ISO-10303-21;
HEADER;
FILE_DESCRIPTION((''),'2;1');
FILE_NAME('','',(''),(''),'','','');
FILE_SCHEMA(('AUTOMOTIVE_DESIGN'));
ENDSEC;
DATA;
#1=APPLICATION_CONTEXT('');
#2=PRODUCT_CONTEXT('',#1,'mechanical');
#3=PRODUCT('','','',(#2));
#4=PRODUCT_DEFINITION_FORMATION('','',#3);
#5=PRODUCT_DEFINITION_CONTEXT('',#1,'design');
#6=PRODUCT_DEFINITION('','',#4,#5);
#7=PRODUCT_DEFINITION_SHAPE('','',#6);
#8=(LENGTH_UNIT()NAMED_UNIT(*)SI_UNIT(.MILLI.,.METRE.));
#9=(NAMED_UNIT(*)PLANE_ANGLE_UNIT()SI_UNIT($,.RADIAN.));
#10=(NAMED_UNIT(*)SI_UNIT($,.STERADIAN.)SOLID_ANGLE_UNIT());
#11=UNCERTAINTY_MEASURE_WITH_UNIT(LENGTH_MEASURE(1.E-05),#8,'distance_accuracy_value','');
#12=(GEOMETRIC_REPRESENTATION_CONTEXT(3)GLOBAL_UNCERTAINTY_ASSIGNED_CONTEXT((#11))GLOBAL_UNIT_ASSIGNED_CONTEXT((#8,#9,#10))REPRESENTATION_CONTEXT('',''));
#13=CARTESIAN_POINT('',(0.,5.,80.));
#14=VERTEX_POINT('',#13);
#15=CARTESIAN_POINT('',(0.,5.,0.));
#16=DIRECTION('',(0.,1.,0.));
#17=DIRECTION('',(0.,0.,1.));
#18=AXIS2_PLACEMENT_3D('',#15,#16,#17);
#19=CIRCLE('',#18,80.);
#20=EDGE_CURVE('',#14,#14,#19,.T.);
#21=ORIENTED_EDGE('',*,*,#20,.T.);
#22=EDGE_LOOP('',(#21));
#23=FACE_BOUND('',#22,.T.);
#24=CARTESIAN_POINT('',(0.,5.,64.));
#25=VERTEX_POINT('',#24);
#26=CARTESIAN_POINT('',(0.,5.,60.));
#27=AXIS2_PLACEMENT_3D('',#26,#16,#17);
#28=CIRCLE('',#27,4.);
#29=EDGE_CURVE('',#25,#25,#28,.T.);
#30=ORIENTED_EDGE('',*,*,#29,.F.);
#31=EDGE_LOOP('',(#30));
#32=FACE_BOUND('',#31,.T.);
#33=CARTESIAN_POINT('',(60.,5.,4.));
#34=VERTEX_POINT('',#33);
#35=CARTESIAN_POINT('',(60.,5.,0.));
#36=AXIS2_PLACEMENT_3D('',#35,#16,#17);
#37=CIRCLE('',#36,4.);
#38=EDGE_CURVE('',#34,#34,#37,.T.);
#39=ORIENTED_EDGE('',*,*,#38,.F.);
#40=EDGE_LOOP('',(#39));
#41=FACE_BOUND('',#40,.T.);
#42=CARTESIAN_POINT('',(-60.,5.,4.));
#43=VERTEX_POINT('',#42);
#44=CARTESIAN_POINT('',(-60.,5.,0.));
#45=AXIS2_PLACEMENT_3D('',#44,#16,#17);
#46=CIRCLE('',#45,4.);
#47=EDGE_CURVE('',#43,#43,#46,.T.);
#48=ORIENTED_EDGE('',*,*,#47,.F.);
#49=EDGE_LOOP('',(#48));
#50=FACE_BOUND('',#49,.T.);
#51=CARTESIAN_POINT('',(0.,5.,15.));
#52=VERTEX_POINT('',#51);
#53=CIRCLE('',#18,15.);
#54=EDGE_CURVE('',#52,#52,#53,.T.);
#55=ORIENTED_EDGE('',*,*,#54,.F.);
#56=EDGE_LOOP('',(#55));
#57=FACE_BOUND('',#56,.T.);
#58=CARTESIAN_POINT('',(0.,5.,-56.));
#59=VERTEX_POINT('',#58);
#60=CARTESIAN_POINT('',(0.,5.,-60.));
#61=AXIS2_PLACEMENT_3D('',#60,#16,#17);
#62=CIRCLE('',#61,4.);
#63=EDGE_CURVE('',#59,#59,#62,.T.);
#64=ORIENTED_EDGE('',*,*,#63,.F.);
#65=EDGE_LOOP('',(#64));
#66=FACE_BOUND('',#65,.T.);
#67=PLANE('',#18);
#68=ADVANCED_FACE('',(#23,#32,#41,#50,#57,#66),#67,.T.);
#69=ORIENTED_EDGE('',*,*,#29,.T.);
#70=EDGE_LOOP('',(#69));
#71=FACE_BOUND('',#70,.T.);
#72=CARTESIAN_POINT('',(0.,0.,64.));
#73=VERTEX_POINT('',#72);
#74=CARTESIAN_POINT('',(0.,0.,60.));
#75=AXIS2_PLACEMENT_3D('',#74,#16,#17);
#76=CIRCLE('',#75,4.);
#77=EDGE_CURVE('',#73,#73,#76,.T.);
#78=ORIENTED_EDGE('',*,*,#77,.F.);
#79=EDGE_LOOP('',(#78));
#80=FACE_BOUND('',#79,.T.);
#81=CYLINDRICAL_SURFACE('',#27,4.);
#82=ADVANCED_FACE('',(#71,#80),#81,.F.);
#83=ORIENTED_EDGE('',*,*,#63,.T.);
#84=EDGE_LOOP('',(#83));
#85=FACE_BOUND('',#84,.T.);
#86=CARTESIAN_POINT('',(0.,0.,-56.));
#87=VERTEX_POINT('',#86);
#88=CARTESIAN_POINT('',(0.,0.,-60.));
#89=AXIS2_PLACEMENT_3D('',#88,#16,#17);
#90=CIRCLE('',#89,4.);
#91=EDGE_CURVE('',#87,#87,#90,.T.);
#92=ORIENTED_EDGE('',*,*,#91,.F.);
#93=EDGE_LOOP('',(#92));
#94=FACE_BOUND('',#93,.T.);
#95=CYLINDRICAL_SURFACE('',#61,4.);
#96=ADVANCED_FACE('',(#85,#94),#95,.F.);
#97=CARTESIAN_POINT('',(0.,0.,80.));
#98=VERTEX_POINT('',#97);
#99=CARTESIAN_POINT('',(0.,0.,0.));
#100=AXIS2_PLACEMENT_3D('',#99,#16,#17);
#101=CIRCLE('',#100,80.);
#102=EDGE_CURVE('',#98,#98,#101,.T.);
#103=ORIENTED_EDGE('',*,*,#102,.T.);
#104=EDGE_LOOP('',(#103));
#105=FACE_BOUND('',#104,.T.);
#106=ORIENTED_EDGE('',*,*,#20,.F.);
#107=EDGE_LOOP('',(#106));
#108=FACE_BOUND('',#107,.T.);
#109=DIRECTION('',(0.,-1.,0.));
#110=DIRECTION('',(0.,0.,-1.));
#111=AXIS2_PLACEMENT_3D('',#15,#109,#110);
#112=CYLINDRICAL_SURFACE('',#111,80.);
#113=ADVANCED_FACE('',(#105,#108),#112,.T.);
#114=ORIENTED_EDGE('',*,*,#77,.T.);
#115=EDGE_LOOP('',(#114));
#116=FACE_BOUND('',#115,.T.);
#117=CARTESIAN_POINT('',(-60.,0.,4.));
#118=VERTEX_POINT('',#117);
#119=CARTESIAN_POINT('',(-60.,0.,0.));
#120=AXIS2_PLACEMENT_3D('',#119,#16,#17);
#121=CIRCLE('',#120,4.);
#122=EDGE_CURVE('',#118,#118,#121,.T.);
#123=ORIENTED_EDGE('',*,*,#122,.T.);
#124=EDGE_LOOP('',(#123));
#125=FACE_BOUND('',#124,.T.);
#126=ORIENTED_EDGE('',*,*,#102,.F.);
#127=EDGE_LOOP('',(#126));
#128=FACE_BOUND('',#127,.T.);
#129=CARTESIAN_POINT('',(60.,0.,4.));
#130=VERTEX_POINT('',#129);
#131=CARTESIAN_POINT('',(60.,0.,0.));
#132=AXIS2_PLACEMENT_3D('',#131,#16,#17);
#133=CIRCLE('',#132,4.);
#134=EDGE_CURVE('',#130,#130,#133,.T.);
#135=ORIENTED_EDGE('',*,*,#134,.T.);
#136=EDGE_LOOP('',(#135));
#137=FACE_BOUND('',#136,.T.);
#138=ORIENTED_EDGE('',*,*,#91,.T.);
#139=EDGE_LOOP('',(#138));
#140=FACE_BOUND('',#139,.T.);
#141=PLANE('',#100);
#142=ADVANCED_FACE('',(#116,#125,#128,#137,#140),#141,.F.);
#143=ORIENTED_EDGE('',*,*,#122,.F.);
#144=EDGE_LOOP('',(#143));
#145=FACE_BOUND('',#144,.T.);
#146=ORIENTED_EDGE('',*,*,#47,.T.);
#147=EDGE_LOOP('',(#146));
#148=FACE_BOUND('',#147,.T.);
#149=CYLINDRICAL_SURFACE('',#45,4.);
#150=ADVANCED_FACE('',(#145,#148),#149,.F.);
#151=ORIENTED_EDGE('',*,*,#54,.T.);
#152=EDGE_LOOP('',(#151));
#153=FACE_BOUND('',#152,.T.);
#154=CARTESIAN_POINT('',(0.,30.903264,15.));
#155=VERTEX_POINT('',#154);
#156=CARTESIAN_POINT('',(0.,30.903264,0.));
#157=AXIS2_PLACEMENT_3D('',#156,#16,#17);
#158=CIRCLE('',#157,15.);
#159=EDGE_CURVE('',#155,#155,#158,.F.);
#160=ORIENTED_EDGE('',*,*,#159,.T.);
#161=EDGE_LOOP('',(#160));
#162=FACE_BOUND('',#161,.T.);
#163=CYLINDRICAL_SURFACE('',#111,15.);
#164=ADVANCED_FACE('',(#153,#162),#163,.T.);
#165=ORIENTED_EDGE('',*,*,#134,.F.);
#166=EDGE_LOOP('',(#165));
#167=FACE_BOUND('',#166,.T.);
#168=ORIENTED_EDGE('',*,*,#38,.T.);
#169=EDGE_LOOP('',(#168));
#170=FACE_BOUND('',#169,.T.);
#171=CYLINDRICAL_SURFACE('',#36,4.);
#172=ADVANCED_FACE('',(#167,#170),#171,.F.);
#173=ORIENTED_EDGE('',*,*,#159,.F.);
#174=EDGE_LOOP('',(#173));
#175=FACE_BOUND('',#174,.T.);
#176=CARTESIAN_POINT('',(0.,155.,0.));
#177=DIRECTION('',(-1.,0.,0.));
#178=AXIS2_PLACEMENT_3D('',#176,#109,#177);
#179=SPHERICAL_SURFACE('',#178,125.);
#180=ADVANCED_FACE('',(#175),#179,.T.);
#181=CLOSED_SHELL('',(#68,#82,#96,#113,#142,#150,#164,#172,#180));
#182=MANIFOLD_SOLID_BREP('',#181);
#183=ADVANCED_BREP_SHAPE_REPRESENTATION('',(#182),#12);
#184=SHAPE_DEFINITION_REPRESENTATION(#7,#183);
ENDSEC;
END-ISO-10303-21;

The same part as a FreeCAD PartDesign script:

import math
import FreeCAD as App
import Part
import Sketcher

V = App.Vector

doc = App.newDocument("Part")
body = doc.addObject("PartDesign::Body", "Body")

sketch1 = doc.addObject("Sketcher::SketchObject", "Sketch")
body.addObject(sketch1)
sketch1.AttachmentSupport = (doc.XZ_Plane, [""])
sketch1.MapMode = "FlatFace"
sketch1.addGeometry(Part.Circle(V(0, 0, 0), V(0, 0, 1), 80), False)
sketch1.addConstraint(Sketcher.Constraint("Coincident", 0, 3, -1, 1))
sketch1.addConstraint(Sketcher.Constraint("Diameter", 0, 160.0))
pad1 = doc.addObject("PartDesign::Pad", "Pad")
body.addObject(pad1)
pad1.Profile = sketch1
pad1.Length = 5
pad1.Reversed = True

sketch2 = doc.addObject("Sketcher::SketchObject", "Sketch001")
body.addObject(sketch2)
sketch2.AttachmentSupport = (doc.XZ_Plane, [""])
sketch2.MapMode = "FlatFace"
sketch2.AttachmentOffset = App.Placement(V(0, 0, -5), App.Rotation())
sketch2.addGeometry(Part.Circle(V(0, -60, 0), V(0, 0, 1), 4), False)
sketch2.addGeometry(Part.Circle(V(-60, 0, 0), V(0, 0, 1), 4), False)
sketch2.addGeometry(Part.Circle(V(60, 0, 0), V(0, 0, 1), 4), False)
sketch2.addGeometry(Part.Circle(V(0, 60, 0), V(0, 0, 1), 4), False)
sketch2.addConstraint(Sketcher.Constraint("Equal", 0, 1))
sketch2.addConstraint(Sketcher.Constraint("Equal", 1, 2))
sketch2.addConstraint(Sketcher.Constraint("Equal", 2, 3))
sketch2.addConstraint(Sketcher.Constraint("Symmetric", 1, 3, 2, 3, -1, 1))
sketch2.addConstraint(Sketcher.Constraint("Symmetric", 0, 3, 3, 3, -1, 1))
sketch2.addConstraint(Sketcher.Constraint("PointOnObject", 0, 3, -2))
sketch2.addConstraint(Sketcher.Constraint("PointOnObject", 1, 3, -1))
sketch2.addConstraint(Sketcher.Constraint("Diameter", 0, 8.0))
sketch2.addConstraint(Sketcher.Constraint("DistanceY", 0, 3, -1, 1, 60.0))
sketch2.addConstraint(Sketcher.Constraint("DistanceX", 1, 3, -1, 1, 60.0))
doc.recompute()
hole = doc.addObject("PartDesign::Hole", "Hole")
body.addObject(hole)
hole.Profile = sketch2
hole.ThreadType = "None"
hole.Diameter = 8
hole.DepthType = "Dimension"
hole.Depth = 20
hole.DrillPoint = "Angled"
hole.DrillPointAngle = 118
hole.Reversed = True

sketch3 = doc.addObject("Sketcher::SketchObject", "Sketch002")
body.addObject(sketch3)
sketch3.AttachmentSupport = (doc.XY_Plane, [""])
sketch3.MapMode = "FlatFace"
sketch3.addGeometry(Part.LineSegment(V(0, 35, 0), V(0, 5, 0)), False)
sketch3.addGeometry(Part.LineSegment(V(0, 5, 0), V(15, 5, 0)), False)
sketch3.addGeometry(Part.LineSegment(V(15, 5, 0), V(15, 35, 0)), False)
sketch3.addGeometry(Part.LineSegment(V(15, 35, 0), V(0, 35, 0)), False)
sketch3.addConstraint(Sketcher.Constraint("Coincident", 0, 2, 1, 1))
sketch3.addConstraint(Sketcher.Constraint("Coincident", 1, 2, 2, 1))
sketch3.addConstraint(Sketcher.Constraint("Coincident", 2, 2, 3, 1))
sketch3.addConstraint(Sketcher.Constraint("Coincident", 3, 2, 0, 1))
sketch3.addConstraint(Sketcher.Constraint("Vertical", 0))
sketch3.addConstraint(Sketcher.Constraint("Horizontal", 1))
sketch3.addConstraint(Sketcher.Constraint("Vertical", 2))
sketch3.addConstraint(Sketcher.Constraint("Horizontal", 3))
sketch3.addConstraint(Sketcher.Constraint("PointOnObject", 0, 2, -2))
sketch3.addConstraint(Sketcher.Constraint("DistanceX", 1, 1, 1, 2, 15.0))
sketch3.addConstraint(Sketcher.Constraint("DistanceY", 0, 2, 0, 1, 30.0))
sketch3.addConstraint(Sketcher.Constraint("DistanceY", -1, 1, 0, 2, 5.0))
revolution = doc.addObject("PartDesign::Revolution", "Revolution")
body.addObject(revolution)
revolution.Profile = sketch3
revolution.ReferenceAxis = (sketch3, ["V_Axis"])
revolution.Angle = 360

sketch4 = doc.addObject("Sketcher::SketchObject", "Sketch003")
body.addObject(sketch4)
sketch4.AttachmentSupport = (doc.XY_Plane, [""])
sketch4.MapMode = "FlatFace"
sketch4.addGeometry(Part.ArcOfCircle(Part.Circle(V(0, 155, 0), V(0, 0, 1), 125), math.radians(90), math.radians(270)), False)
sketch4.addGeometry(Part.LineSegment(V(0, 30, 0), V(0, 280, 0)), False)
sketch4.addConstraint(Sketcher.Constraint("Coincident", 0, 1, 1, 2))
sketch4.addConstraint(Sketcher.Constraint("Coincident", 1, 1, 0, 2))
sketch4.addConstraint(Sketcher.Constraint("Vertical", 1))
sketch4.addConstraint(Sketcher.Constraint("PointOnObject", 0, 3, -2))
sketch4.addConstraint(Sketcher.Constraint("PointOnObject", 0, 1, -2))
sketch4.addConstraint(Sketcher.Constraint("Radius", 0, 125.0))
sketch4.addConstraint(Sketcher.Constraint("DistanceY", -1, 1, 0, 3, 155.0))
revolution2 = doc.addObject("PartDesign::Revolution", "Revolution001")
body.addObject(revolution2)
revolution2.Profile = sketch4
revolution2.ReferenceAxis = (sketch4, ["V_Axis"])
revolution2.Angle = 360

doc.recompute()
